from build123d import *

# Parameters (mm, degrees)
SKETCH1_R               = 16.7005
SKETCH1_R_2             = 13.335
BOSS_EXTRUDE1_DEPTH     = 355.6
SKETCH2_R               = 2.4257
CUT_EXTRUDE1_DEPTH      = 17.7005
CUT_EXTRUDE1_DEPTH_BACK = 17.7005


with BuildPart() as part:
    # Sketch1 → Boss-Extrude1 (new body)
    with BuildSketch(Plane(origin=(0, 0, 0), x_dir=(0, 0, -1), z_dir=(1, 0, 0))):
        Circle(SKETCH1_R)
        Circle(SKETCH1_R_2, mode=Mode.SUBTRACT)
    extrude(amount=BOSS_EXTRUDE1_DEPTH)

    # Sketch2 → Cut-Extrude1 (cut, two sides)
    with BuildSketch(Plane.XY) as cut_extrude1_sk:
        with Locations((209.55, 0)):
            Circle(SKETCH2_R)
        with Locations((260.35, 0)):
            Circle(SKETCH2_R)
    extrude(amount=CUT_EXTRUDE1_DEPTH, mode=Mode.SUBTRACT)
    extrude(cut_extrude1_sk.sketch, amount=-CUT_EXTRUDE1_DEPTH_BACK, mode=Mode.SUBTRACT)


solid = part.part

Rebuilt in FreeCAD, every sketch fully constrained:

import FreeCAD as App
import Part
import Sketcher
Q = App.Units.Quantity

doc = App.newDocument("Part")
body = doc.addObject("PartDesign::Body", "Body")

sketch1 = body.newObject("Sketcher::SketchObject", "Sketch")
sketch1.AttachmentSupport = (doc.getObject("YZ_Plane"), [""])
sketch1.MapMode = "FlatFace"
sketch1.addGeometry([
    Part.Circle(App.Vector(0, 0, 0), App.Vector(0, 0, 1), 17),
    Part.Circle(App.Vector(0, 0, 0), App.Vector(0, 0, 1), 13),
], False)
sketch1.addConstraint([
    Sketcher.Constraint("Coincident", 0, 3, -1, 1),
    Sketcher.Constraint("Coincident", 1, 3, -1, 1),
    Sketcher.Constraint("Diameter", 1, Q("1.05 in")),
    Sketcher.Constraint("Diameter", 0, Q("1.315 in")),
])
pad1 = body.newObject("PartDesign::Pad", "Pad")
pad1.Profile = sketch1
pad1.Length = Q("14 in")

sketch2 = body.newObject("Sketcher::SketchObject", "Sketch001")
sketch2.AttachmentSupport = (doc.getObject("XY_Plane"), [""])
sketch2.MapMode = "FlatFace"
sketch2.addGeometry([
    Part.Circle(App.Vector(209.6, 0, 0), App.Vector(0, 0, 1), 2.4),
    Part.Circle(App.Vector(260.4, 0, 0), App.Vector(0, 0, 1), 2.4),
], False)
sketch2.addConstraint([
    Sketcher.Constraint("Equal", 0, 1),
    Sketcher.Constraint("PointOnObject", 0, 3, -1),
    Sketcher.Constraint("PointOnObject", 1, 3, -1),
    Sketcher.Constraint("Diameter", 0, Q("0.191 in")),
    Sketcher.Constraint("DistanceX", 0, 3, 1, 3, Q("2 in")),
    Sketcher.Constraint("DistanceX", -1, 1, 0, 3, Q("8.25 in")),
])
pocket1 = body.newObject("PartDesign::Pocket", "Pocket")
pocket1.Profile = sketch2
pocket1.Type = "ThroughAll"
pocket1.Midplane = True

doc.recompute()
